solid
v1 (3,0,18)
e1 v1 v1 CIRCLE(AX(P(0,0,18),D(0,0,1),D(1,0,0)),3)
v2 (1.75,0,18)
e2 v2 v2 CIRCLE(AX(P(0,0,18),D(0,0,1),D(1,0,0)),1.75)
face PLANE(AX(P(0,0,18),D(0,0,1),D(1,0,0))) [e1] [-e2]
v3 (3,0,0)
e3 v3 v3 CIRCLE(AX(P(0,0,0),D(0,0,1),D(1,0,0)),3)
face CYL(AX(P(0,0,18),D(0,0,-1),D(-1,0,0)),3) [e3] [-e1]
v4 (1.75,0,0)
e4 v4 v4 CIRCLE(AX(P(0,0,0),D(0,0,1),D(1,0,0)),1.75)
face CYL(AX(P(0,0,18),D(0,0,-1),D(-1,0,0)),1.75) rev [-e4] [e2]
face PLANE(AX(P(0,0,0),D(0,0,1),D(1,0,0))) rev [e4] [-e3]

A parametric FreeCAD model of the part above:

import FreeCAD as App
import Part
import Sketcher
from FreeCAD import Vector

doc = App.newDocument("Part")
body = doc.addObject("PartDesign::Body", "Body")

sketch1 = doc.addObject("Sketcher::SketchObject", "Sketch")
body.addObject(sketch1)
sketch1.AttachmentSupport = (doc.XY_Plane, [""])
sketch1.MapMode = "FlatFace"
sketch1.addGeometry(Part.Circle(Vector(0, 0, 0), Vector(0, 0, 1), 3), False)
sketch1.addGeometry(Part.Circle(Vector(0, 0, 0), Vector(0, 0, 1), 1.8), False)
sketch1.addConstraint(Sketcher.Constraint("Coincident", 0, 3, -1, 1))
sketch1.addConstraint(Sketcher.Constraint("Coincident", 1, 3, -1, 1))
sketch1.addConstraint(Sketcher.Constraint("Diameter", 0, 6.0))
sketch1.addConstraint(Sketcher.Constraint("Diameter", 1, 3.5))
pad1 = doc.addObject("PartDesign::Pad", "Pad")
body.addObject(pad1)
pad1.Profile = sketch1
pad1.Length = 18

doc.recompute()
